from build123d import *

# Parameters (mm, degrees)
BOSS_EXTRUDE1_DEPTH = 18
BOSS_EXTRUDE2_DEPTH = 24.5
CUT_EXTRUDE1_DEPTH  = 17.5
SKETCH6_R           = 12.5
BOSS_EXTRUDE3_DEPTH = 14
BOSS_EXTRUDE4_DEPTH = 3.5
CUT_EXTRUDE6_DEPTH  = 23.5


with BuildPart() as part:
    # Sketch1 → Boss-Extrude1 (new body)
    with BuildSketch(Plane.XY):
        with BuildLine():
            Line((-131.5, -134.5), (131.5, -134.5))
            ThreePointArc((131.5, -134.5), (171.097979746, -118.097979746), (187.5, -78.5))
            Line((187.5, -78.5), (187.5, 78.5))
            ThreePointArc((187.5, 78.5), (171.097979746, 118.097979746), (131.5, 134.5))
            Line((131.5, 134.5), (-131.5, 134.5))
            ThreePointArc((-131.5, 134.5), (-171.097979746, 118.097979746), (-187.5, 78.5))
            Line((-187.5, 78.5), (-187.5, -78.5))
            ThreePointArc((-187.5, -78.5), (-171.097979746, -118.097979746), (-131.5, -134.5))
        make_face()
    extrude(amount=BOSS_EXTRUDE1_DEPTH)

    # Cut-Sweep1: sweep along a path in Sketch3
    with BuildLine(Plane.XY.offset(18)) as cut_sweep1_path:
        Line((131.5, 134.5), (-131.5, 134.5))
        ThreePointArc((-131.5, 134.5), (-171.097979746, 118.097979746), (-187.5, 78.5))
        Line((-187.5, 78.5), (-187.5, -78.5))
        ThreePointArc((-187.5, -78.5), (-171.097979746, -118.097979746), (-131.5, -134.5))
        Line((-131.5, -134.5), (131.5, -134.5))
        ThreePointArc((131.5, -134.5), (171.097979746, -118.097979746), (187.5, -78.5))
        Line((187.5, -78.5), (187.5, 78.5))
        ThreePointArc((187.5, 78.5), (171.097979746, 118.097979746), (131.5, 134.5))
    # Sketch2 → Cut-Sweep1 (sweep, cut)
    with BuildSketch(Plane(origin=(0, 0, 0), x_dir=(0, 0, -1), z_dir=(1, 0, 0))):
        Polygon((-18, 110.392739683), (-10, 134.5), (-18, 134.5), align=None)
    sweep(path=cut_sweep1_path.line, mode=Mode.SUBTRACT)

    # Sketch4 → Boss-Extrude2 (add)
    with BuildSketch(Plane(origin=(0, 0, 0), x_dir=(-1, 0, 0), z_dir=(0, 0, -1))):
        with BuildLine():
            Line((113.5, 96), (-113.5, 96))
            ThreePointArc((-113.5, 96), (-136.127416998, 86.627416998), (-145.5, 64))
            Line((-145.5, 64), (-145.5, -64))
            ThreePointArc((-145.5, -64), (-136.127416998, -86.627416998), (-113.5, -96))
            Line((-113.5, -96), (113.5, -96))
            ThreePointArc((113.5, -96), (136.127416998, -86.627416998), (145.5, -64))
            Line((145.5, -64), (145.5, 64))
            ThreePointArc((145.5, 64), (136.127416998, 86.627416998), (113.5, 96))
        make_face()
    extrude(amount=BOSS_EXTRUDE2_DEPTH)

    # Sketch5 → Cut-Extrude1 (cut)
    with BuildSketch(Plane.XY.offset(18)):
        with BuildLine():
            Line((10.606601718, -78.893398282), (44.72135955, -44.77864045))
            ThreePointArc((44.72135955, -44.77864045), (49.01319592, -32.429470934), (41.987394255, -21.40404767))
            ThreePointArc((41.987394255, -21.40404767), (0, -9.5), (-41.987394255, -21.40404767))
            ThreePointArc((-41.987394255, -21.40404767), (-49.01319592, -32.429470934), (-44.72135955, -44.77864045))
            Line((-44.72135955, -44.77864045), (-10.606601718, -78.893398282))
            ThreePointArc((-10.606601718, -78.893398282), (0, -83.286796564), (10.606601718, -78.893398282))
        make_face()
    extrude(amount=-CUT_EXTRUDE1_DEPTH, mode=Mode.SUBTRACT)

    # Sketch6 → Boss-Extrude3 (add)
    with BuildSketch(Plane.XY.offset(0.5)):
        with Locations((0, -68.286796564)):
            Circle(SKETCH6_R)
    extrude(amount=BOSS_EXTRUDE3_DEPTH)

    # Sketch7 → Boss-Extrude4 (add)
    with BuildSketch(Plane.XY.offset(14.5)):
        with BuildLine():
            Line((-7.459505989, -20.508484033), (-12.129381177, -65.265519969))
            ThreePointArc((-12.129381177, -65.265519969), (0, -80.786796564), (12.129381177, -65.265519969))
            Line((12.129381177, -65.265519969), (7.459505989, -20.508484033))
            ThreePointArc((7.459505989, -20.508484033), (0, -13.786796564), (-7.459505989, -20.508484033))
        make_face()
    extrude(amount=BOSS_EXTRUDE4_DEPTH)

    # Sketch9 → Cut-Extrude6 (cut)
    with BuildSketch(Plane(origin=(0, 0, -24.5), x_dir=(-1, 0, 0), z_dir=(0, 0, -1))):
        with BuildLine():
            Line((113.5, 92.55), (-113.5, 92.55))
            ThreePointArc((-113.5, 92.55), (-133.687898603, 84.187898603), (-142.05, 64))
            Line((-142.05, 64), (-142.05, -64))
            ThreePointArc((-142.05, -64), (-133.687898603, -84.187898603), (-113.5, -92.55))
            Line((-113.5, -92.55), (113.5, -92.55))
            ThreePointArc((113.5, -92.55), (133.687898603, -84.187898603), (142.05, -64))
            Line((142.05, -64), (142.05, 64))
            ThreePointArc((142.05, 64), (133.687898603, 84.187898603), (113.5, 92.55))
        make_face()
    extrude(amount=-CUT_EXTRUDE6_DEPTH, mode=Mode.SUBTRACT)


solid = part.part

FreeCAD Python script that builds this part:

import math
import FreeCAD as App
import Part
import Sketcher

V = App.Vector
Q = App.Units.Quantity

doc = App.newDocument("Part")
body = doc.addObject("PartDesign::Body", "Body")

# Sketch on XY plane
sketch1 = doc.addObject("Sketcher::SketchObject", "Sketch")
body.addObject(sketch1)
sketch1.AttachmentSupport = (doc.XY_Plane, [""])
sketch1.MapMode = "FlatFace"
sketch1.addGeometry([
    Part.LineSegment(V(-132, -134, 0), V(132, -134, 0)),  # 0
    Part.ArcOfCircle(Part.Circle(V(131, -78, 0), V(0, 0, 1), 56), math.radians(-90), math.radians(0)),  # 1
    Part.LineSegment(V(188, -78, 0), V(188, 78, 0)),  # 2
    Part.ArcOfCircle(Part.Circle(V(131, 78, 0), V(0, 0, 1), 56), math.radians(0), math.radians(90)),  # 3
    Part.LineSegment(V(132, 134, 0), V(-132, 134, 0)),  # 4
    Part.ArcOfCircle(Part.Circle(V(-131, 78, 0), V(0, 0, 1), 56), math.radians(90), math.radians(180)),  # 5
    Part.LineSegment(V(-188, 78, 0), V(-188, -78, 0)),  # 6
    Part.ArcOfCircle(Part.Circle(V(-131, -78, 0), V(0, 0, 1), 56), math.radians(-180), math.radians(-90)),  # 7
], False)
sketch1.addConstraint([
    Sketcher.Constraint("Tangent", 0, 2, 1, 1),
    Sketcher.Constraint("Tangent", 1, 2, 2, 1),
    Sketcher.Constraint("Tangent", 2, 2, 3, 1),
    Sketcher.Constraint("Tangent", 3, 2, 4, 1),
    Sketcher.Constraint("Tangent", 4, 2, 5, 1),
    Sketcher.Constraint("Tangent", 5, 2, 6, 1),
    Sketcher.Constraint("Tangent", 6, 2, 7, 1),
    Sketcher.Constraint("Tangent", 7, 2, 0, 1),
    Sketcher.Constraint("Horizontal", 0),
    Sketcher.Constraint("Vertical", 2),
    Sketcher.Constraint("Horizontal", 4),
    Sketcher.Constraint("Vertical", 6),
    Sketcher.Constraint("Equal", 1, 3),
    Sketcher.Constraint("Equal", 3, 5),
    Sketcher.Constraint("Equal", 5, 7),
    Sketcher.Constraint("Symmetric", 1, 3, 5, 3, -1, 1),
    Sketcher.Constraint("Radius", 1, Q("56 mm")),
    Sketcher.Constraint("DistanceX", 0, 1, 0, 2, Q("263 mm")),
    Sketcher.Constraint("DistanceY", 2, 1, 2, 2, Q("157 mm")),
])
pad1 = doc.addObject("PartDesign::Pad", "Pad")
body.addObject(pad1)
pad1.Profile = sketch1
pad1.Length = 18

# Sketch on YZ plane
sketch2 = doc.addObject("Sketcher::SketchObject", "Sketch001")
body.addObject(sketch2)
sketch2.AttachmentSupport = (doc.YZ_Plane, [""])
sketch2.MapMode = "FlatFace"
sketch2.addGeometry([
    Part.LineSegment(V(110, 18, 0), V(134, 10, 0)),
    Part.LineSegment(V(134, 10, 0), V(134, 18, 0)),
    Part.LineSegment(V(134, 18, 0), V(110, 18, 0)),
], False)
sketch2.addConstraint([
    Sketcher.Constraint("Coincident", 0, 2, 1, 1),
    Sketcher.Constraint("Coincident", 1, 2, 2, 1),
    Sketcher.Constraint("Coincident", 2, 2, 0, 1),
    Sketcher.Constraint("Vertical", 1),
    Sketcher.Constraint("Horizontal", 2),
    Sketcher.Constraint("DistanceY", 1, 1, 1, 2, Q("8 mm")),
    Sketcher.Constraint("DistanceY", -1, 1, 0, 2, Q("10 mm")),
    Sketcher.Constraint("Distance", 0, Q("25.4 mm")),
    Sketcher.Constraint("DistanceX", -1, 1, 0, 2, Q("134.5 mm")),
])

# Sketch on XY plane
sketch3 = doc.addObject("Sketcher::SketchObject", "Sketch002")
body.addObject(sketch3)
sketch3.AttachmentSupport = (doc.XY_Plane, [""])
sketch3.MapMode = "FlatFace"
sketch3.AttachmentOffset = App.Placement(V(0, 0, 18), App.Rotation())
sketch3.addGeometry([
    Part.LineSegment(V(132, 134, 0), V(-132, 134, 0)),  # 0
    Part.ArcOfCircle(Part.Circle(V(-131, 78, 0), V(0, 0, 1), 56), math.radians(90), math.radians(180)),  # 1
    Part.LineSegment(V(-188, 78, 0), V(-188, -78, 0)),  # 2
    Part.ArcOfCircle(Part.Circle(V(-131, -78, 0), V(0, 0, 1), 56), math.radians(-180), math.radians(-90)),  # 3
    Part.LineSegment(V(-132, -134, 0), V(132, -134, 0)),  # 4
    Part.ArcOfCircle(Part.Circle(V(131, -78, 0), V(0, 0, 1), 56), math.radians(-90), math.radians(0)),  # 5
    Part.LineSegment(V(188, -78, 0), V(188, 78, 0)),  # 6
    Part.ArcOfCircle(Part.Circle(V(131, 78, 0), V(0, 0, 1), 56), math.radians(0), math.radians(90)),  # 7
], False)
sketch3.addConstraint([
    Sketcher.Constraint("Tangent", 0, 2, 1, 1),
    Sketcher.Constraint("Tangent", 1, 2, 2, 1),
    Sketcher.Constraint("Tangent", 2, 2, 3, 1),
    Sketcher.Constraint("Tangent", 3, 2, 4, 1),
    Sketcher.Constraint("Tangent", 4, 2, 5, 1),
    Sketcher.Constraint("Tangent", 5, 2, 6, 1),
    Sketcher.Constraint("Tangent", 6, 2, 7, 1),
    Sketcher.Constraint("Tangent", 7, 2, 0, 1),
    Sketcher.Constraint("Horizontal", 0),
    Sketcher.Constraint("Vertical", 2),
    Sketcher.Constraint("Horizontal", 4),
    Sketcher.Constraint("Vertical", 6),
    Sketcher.Constraint("Equal", 1, 3),
    Sketcher.Constraint("Equal", 3, 5),
    Sketcher.Constraint("Equal", 5, 7),
    Sketcher.Constraint("Symmetric", 1, 3, 5, 3, -1, 1),
    Sketcher.Constraint("Radius", 1, Q("56 mm")),
    Sketcher.Constraint("DistanceX", 0, 2, 0, 1, Q("263 mm")),
    Sketcher.Constraint("DistanceY", 2, 2, 2, 1, Q("157 mm")),
])
doc.recompute()

subtractivepipe = doc.addObject("PartDesign::SubtractivePipe", "SubtractivePipe")
body.addObject(subtractivepipe)
subtractivepipe.Profile = sketch2
subtractivepipe.Spine = (sketch3, ["Edge1", "Edge2", "Edge3", "Edge4", "Edge5", "Edge6", "Edge7", "Edge8"])

# Sketch on XY plane
sketch4 = doc.addObject("Sketcher::SketchObject", "Sketch003")
body.addObject(sketch4)
sketch4.AttachmentSupport = (doc.XY_Plane, [""])
sketch4.MapMode = "FlatFace"
sketch4.addGeometry([
    Part.LineSegment(V(-114, 96, 0), V(114, 96, 0)),  # 0
    Part.ArcOfCircle(Part.Circle(V(114, 64, 0), V(0, 0, 1), 32), math.radians(0), math.radians(90)),  # 1
    Part.LineSegment(V(146, 64, 0), V(146, -64, 0)),  # 2
    Part.ArcOfCircle(Part.Circle(V(114, -64, 0), V(0, 0, 1), 32), math.radians(-90), math.radians(0)),  # 3
    Part.LineSegment(V(114, -96, 0), V(-114, -96, 0)),  # 4
    Part.ArcOfCircle(Part.Circle(V(-114, -64, 0), V(0, 0, 1), 32), math.radians(180), math.radians(270)),  # 5
    Part.LineSegment(V(-146, -64, 0), V(-146, 64, 0)),  # 6
    Part.ArcOfCircle(Part.Circle(V(-114, 64, 0), V(0, 0, 1), 32), math.radians(90), math.radians(180)),  # 7
], False)
sketch4.addConstraint([
    Sketcher.Constraint("Tangent", 0, 2, 1, 2),
    Sketcher.Constraint("Tangent", 1, 1, 2, 1),
    Sketcher.Constraint("Tangent", 2, 2, 3, 2),
    Sketcher.Constraint("Tangent", 3, 1, 4, 1),
    Sketcher.Constraint("Tangent", 4, 2, 5, 2),
    Sketcher.Constraint("Tangent", 5, 1, 6, 1),
    Sketcher.Constraint("Tangent", 6, 2, 7, 2),
    Sketcher.Constraint("Tangent", 7, 1, 0, 1),
    Sketcher.Constraint("Horizontal", 0),
    Sketcher.Constraint("Vertical", 2),
    Sketcher.Constraint("Horizontal", 4),
    Sketcher.Constraint("Vertical", 6),
    Sketcher.Constraint("Equal", 1, 3),
    Sketcher.Constraint("Equal", 3, 5),
    Sketcher.Constraint("Equal", 5, 7),
    Sketcher.Constraint("Symmetric", 1, 3, 5, 3, -1, 1),
    Sketcher.Constraint("Radius", 1, Q("32 mm")),
    Sketcher.Constraint("DistanceX", 0, 1, 0, 2, Q("227 mm")),
    Sketcher.Constraint("DistanceY", 2, 2, 2, 1, Q("128 mm")),
])
pad2 = doc.addObject("PartDesign::Pad", "Pad001")
body.addObject(pad2)
pad2.Profile = sketch4
pad2.Length = 24.5
pad2.Reversed = True

# Sketch on XY plane
sketch5 = doc.addObject("Sketcher::SketchObject", "Sketch004")
body.addObject(sketch5)
sketch5.AttachmentSupport = (doc.XY_Plane, [""])
sketch5.MapMode = "FlatFace"
sketch5.AttachmentOffset = App.Placement(V(0, 0, 18), App.Rotation())
sketch5.addGeometry([
    Part.LineSegment(V(11, -79, 0), V(45, -45, 0)),  # 0
    Part.ArcOfCircle(Part.Circle(V(34, -34, 0), V(0, 0, 1), 15), math.radians(-45), math.radians(58)),  # 1
    Part.ArcOfCircle(Part.Circle(V(0, -90, 0), V(0, 0, 1), 80), math.radians(58), math.radians(122)),  # 2
    Part.ArcOfCircle(Part.Circle(V(-34, -34, 0), V(0, 0, 1), 15), math.radians(122), math.radians(225)),  # 3
    Part.LineSegment(V(-45, -45, 0), V(-11, -79, 0)),  # 4
    Part.ArcOfCircle(Part.Circle(V(0, -68, 0), V(0, 0, 1), 15), math.radians(-135), math.radians(-45)),  # 5
], False)
sketch5.addConstraint([
    Sketcher.Constraint("Tangent", 0, 2, 1, 1),
    Sketcher.Constraint("Tangent", 1, 2, 2, 1),
    Sketcher.Constraint("Tangent", 2, 2, 3, 1),
    Sketcher.Constraint("Tangent", 3, 2, 4, 1),
    Sketcher.Constraint("Tangent", 4, 2, 5, 1),
    Sketcher.Constraint("Tangent", 5, 2, 0, 1),
    Sketcher.Constraint("Equal", 1, 3),
    Sketcher.Constraint("Equal", 3, 5),
    Sketcher.Constraint("Symmetric", 1, 3, 3, 3, -2),
    Sketcher.Constraint("PointOnObject", 5, 3, -2),
    Sketcher.Constraint("Perpendicular", 0, 4),
    Sketcher.Constraint("Radius", 1, Q("15 mm")),
    Sketcher.Constraint("Radius", 2, Q("80 mm")),
    Sketcher.Constraint("DistanceY", 2, 3, -1, 1, Q("89.5 mm")),
    Sketcher.Constraint("DistanceY", 4, 2, -1, 1, Q("78.893398 mm")),
])
pocket1 = doc.addObject("PartDesign::Pocket", "Pocket")
body.addObject(pocket1)
pocket1.Profile = sketch5
pocket1.Length = 17.5

# Sketch on XY plane
sketch6 = doc.addObject("Sketcher::SketchObject", "Sketch005")
body.addObject(sketch6)
sketch6.AttachmentSupport = (doc.XY_Plane, [""])
sketch6.MapMode = "FlatFace"
sketch6.AttachmentOffset = App.Placement(V(0, 0, 0.5), App.Rotation())
sketch6.addGeometry(Part.Circle(V(0, -68, 0), V(0, 0, 1), 12), False)
sketch6.addConstraint([
    Sketcher.Constraint("PointOnObject", 0, 3, -2),
    Sketcher.Constraint("Diameter", 0, Q("25 mm")),
    Sketcher.Constraint("DistanceY", 0, 3, -1, 1, Q("68.286797 mm")),
])
pad3 = doc.addObject("PartDesign::Pad", "Pad002")
body.addObject(pad3)
pad3.Profile = sketch6
pad3.Length = 14

# Sketch on XY plane
sketch7 = doc.addObject("Sketcher::SketchObject", "Sketch006")
body.addObject(sketch7)
sketch7.AttachmentSupport = (doc.XY_Plane, [""])
sketch7.MapMode = "FlatFace"
sketch7.AttachmentOffset = App.Placement(V(0, 0, 14.5), App.Rotation())
sketch7.addGeometry([
    Part.LineSegment(V(-7, -21, 0), V(-12, -65, 0)),
    Part.ArcOfCircle(Part.Circle(V(0, -68, 0), V(0, 0, 1), 12), math.radians(166), math.radians(374)),
    Part.LineSegment(V(12, -65, 0), V(7, -21, 0)),
    Part.ArcOfCircle(Part.Circle(V(0, -21, 0), V(0, 0, 1), 8), math.radians(6), math.radians(174)),
], False)
sketch7.addConstraint([
    Sketcher.Constraint("Coincident", 0, 2, 1, 1),
    Sketcher.Constraint("Coincident", 1, 2, 2, 1),
    Sketcher.Constraint("Tangent", 2, 2, 3, 1),
    Sketcher.Constraint("Tangent", 3, 2, 0, 1),
    Sketcher.Constraint("Symmetric", 0, 2, 1, 2, -2),
    Sketcher.Constraint("PointOnObject", 3, 3, -2),
    Sketcher.Constraint("Radius", 1, Q("12.5 mm")),
    Sketcher.Constraint("Radius", 3, Q("7.5 mm")),
    Sketcher.Constraint("Distance", 0, Q("45 mm")),
    Sketcher.Constraint("DistanceY", 1, 3, 3, 3, Q("47 mm")),
    Sketcher.Constraint("DistanceY", 0, 2, -1, 1, Q("65.26552 mm")),
])
pad4 = doc.addObject("PartDesign::Pad", "Pad003")
body.addObject(pad4)
pad4.Profile = sketch7
pad4.Length = 3.5

# Sketch on XY plane
sketch8 = doc.addObject("Sketcher::SketchObject", "Sketch007")
body.addObject(sketch8)
sketch8.AttachmentSupport = (doc.XY_Plane, [""])
sketch8.MapMode = "FlatFace"
sketch8.AttachmentOffset = App.Placement(V(0, 0, -24.5), App.Rotation())
sketch8.addGeometry([
    Part.LineSegment(V(-114, 93, 0), V(114, 93, 0)),  # 0
    Part.ArcOfCircle(Part.Circle(V(114, 64, 0), V(0, 0, 1), 29), math.radians(0), math.radians(90)),  # 1
    Part.LineSegment(V(142, 64, 0), V(142, -64, 0)),  # 2
    Part.ArcOfCircle(Part.Circle(V(114, -64, 0), V(0, 0, 1), 29), math.radians(-90), math.radians(0)),  # 3
    Part.LineSegment(V(114, -93, 0), V(-114, -93, 0)),  # 4
    Part.ArcOfCircle(Part.Circle(V(-114, -64, 0), V(0, 0, 1), 29), math.radians(180), math.radians(270)),  # 5
    Part.LineSegment(V(-142, -64, 0), V(-142, 64, 0)),  # 6
    Part.ArcOfCircle(Part.Circle(V(-114, 64, 0), V(0, 0, 1), 29), math.radians(90), math.radians(180)),  # 7
], False)
sketch8.addConstraint([
    Sketcher.Constraint("Tangent", 0, 2, 1, 2),
    Sketcher.Constraint("Tangent", 1, 1, 2, 1),
    Sketcher.Constraint("Tangent", 2, 2, 3, 2),
    Sketcher.Constraint("Tangent", 3, 1, 4, 1),
    Sketcher.Constraint("Tangent", 4, 2, 5, 2),
    Sketcher.Constraint("Tangent", 5, 1, 6, 1),
    Sketcher.Constraint("Tangent", 6, 2, 7, 2),
    Sketcher.Constraint("Tangent", 7, 1, 0, 1),
    Sketcher.Constraint("Horizontal", 0),
    Sketcher.Constraint("Vertical", 2),
    Sketcher.Constraint("Horizontal", 4),
    Sketcher.Constraint("Vertical", 6),
    Sketcher.Constraint("Equal", 1, 3),
    Sketcher.Constraint("Equal", 3, 5),
    Sketcher.Constraint("Equal", 5, 7),
    Sketcher.Constraint("Symmetric", 1, 3, 5, 3, -1, 1),
    Sketcher.Constraint("DistanceX", 0, 1, 0, 2, Q("227 mm")),
    Sketcher.Constraint("DistanceY", 2, 2, 2, 1, Q("128 mm")),
    Sketcher.Constraint("Radius", 1, Q("28.55 mm")),
])
pocket2 = doc.addObject("PartDesign::Pocket", "Pocket001")
body.addObject(pocket2)
pocket2.Profile = sketch8
pocket2.Length = 23.5
pocket2.Reversed = True

doc.recompute()
